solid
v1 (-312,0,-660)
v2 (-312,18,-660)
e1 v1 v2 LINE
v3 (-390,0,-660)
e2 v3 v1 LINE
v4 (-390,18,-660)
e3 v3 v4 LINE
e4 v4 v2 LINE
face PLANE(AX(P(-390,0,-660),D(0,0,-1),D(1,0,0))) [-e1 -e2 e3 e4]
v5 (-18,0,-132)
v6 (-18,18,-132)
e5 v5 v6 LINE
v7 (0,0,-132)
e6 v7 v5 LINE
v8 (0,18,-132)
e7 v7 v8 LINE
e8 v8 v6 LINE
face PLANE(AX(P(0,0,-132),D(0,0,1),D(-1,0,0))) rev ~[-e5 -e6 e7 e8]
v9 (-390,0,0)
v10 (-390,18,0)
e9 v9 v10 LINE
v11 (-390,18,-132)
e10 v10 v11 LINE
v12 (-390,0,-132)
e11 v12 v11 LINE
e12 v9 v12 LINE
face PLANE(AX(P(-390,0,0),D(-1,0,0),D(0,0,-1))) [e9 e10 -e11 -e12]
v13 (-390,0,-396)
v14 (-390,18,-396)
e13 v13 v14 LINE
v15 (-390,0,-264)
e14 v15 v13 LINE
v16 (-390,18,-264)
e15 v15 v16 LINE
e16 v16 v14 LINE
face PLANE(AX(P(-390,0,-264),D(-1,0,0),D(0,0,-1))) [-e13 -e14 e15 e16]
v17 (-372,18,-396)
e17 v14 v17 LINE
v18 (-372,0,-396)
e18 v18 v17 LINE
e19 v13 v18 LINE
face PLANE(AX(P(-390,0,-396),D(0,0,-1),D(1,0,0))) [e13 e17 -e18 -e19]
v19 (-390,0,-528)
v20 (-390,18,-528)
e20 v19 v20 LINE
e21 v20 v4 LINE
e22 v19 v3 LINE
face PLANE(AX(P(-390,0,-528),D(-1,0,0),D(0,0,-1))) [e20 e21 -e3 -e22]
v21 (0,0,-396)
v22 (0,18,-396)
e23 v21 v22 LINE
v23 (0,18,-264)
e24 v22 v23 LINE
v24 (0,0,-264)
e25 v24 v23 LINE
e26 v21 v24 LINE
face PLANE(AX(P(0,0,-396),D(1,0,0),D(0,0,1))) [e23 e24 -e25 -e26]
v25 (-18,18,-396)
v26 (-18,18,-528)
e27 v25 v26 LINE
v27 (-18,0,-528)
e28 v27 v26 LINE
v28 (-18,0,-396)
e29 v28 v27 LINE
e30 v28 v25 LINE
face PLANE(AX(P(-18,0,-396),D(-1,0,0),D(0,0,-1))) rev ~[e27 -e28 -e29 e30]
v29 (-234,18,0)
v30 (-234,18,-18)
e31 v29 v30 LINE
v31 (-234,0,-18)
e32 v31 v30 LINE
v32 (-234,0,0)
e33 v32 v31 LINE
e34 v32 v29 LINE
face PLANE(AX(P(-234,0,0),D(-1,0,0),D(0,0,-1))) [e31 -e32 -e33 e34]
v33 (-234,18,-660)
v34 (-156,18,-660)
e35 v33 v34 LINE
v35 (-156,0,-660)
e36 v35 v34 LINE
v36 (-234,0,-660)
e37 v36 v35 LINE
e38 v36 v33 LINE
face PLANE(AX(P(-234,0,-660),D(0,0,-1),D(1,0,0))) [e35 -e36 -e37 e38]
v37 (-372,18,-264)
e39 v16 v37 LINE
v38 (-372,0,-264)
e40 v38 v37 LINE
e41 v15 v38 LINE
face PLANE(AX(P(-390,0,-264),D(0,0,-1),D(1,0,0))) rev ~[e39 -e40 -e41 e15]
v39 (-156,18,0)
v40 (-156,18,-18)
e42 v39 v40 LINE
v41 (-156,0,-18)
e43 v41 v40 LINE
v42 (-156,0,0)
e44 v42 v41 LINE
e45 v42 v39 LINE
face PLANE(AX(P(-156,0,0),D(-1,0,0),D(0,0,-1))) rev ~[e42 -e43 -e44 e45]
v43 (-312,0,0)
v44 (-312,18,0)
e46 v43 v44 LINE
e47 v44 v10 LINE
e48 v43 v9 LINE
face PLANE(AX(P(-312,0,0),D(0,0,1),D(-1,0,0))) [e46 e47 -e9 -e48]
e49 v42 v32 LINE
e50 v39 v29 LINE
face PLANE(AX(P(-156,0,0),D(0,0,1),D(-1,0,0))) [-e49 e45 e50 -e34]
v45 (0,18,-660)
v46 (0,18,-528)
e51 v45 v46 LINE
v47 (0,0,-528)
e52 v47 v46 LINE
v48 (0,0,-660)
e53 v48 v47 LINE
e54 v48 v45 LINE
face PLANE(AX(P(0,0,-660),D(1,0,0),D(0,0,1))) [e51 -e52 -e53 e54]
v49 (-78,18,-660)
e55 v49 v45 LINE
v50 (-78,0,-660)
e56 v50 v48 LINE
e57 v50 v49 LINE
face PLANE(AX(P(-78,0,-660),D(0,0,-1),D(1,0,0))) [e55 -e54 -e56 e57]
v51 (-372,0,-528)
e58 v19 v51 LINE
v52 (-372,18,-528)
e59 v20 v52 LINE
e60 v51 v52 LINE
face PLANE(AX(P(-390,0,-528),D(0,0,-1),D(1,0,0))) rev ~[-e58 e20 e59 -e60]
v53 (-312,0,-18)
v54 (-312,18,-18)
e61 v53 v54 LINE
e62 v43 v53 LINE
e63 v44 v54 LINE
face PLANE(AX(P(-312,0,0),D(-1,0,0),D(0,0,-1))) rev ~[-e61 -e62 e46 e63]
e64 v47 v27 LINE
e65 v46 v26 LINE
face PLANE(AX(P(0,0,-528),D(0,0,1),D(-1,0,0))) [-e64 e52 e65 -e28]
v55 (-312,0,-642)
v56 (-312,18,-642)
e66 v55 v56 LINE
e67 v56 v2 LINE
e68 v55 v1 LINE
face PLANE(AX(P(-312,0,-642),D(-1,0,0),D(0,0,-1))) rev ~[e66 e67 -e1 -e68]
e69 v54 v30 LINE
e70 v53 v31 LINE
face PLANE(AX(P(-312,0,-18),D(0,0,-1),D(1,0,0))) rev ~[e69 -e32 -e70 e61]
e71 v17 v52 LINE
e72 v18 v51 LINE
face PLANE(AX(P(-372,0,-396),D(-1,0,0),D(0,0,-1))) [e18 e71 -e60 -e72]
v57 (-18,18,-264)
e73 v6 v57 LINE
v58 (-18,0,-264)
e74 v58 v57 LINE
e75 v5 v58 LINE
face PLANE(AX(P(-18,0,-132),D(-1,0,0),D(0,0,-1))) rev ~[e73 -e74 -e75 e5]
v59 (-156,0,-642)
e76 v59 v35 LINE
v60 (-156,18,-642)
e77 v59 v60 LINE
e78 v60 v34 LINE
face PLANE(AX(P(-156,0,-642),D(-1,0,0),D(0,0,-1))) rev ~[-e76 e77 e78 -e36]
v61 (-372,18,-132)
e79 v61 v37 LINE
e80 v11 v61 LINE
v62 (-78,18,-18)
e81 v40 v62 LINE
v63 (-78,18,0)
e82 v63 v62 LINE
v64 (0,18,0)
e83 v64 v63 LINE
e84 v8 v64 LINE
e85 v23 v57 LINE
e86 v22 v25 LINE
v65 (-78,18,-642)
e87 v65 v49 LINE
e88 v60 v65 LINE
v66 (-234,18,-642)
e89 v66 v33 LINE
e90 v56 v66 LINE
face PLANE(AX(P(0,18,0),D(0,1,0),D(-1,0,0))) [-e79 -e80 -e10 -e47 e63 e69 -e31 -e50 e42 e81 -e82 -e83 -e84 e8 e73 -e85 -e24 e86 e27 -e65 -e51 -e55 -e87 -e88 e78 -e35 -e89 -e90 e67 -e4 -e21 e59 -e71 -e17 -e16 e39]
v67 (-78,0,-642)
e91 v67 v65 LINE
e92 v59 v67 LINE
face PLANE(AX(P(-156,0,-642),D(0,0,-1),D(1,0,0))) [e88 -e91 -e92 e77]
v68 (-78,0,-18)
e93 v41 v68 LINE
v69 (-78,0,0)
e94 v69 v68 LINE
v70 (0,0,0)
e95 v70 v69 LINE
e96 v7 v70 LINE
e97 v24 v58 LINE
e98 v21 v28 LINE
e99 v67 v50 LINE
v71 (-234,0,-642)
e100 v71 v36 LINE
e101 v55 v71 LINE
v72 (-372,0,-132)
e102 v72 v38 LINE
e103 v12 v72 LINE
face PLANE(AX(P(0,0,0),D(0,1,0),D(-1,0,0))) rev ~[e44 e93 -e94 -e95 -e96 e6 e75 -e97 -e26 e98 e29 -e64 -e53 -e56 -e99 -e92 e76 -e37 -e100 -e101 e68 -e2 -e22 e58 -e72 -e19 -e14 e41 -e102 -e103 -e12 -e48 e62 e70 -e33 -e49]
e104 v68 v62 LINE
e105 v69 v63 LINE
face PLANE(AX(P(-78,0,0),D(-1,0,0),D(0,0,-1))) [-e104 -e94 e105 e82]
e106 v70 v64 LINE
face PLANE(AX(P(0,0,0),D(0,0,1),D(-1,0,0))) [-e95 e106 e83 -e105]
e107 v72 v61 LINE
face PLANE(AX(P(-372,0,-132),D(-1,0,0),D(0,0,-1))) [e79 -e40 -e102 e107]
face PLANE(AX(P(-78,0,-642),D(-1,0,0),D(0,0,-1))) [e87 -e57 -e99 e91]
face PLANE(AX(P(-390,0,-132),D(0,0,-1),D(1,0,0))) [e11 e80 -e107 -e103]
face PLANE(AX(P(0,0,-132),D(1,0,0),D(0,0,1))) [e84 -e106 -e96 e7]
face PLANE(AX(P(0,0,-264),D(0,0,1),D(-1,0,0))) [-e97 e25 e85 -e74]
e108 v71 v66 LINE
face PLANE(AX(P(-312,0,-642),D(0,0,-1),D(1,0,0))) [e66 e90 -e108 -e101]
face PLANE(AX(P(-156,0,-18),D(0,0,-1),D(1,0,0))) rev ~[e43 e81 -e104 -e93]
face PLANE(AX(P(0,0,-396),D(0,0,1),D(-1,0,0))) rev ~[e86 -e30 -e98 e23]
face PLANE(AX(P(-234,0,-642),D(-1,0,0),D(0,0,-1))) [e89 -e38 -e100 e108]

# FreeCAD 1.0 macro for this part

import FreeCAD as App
import Part
import Sketcher
Q = App.Units.Quantity


def add_polygon(sketch, points):
    """Adds a closed chain of lines whose ends are joined by coincident constraints."""
    first, n = sketch.GeometryCount, len(points)
    for a, b in zip(points, points[1:] + points[:1]):
        sketch.addGeometry(Part.LineSegment(App.Vector(*a, 0), App.Vector(*b, 0)), False)
    for i in range(n):
        sketch.addConstraint(Sketcher.Constraint("Coincident", first + i, 2, first + (i + 1) % n, 1))

doc = App.newDocument("Part")
params = doc.addObject("Spreadsheet::Sheet", "Params")
for row, (alias, value) in enumerate([
    ("sketch1_width", "18 mm"),
    ("sketch1_width2", "78 mm"),
    ("sketch1_height", "132 mm"),
    ("pad1_length", "18 mm"),
], start=1):
    params.set(f"A{row}", alias)
    params.set(f"B{row}", "=" + value)
    params.setAlias(f"B{row}", alias)

body = doc.addObject("PartDesign::Body", "Body")

# Sketch on XZ plane
sketch1 = body.newObject("Sketcher::SketchObject", "Sketch")
sketch1.AttachmentSupport = (doc.getObject("XZ_Plane"), [""])
sketch1.MapMode = "FlatFace"
add_polygon(sketch1, [(0, 0), (0, -132), (-18, -132), (-18, -264), (0, -264), (0, -396), (-18, -396), (-18, -528), (0, -528), (0, -660), (-78, -660), (-78, -642), (-156, -642), (-156, -660), (-234, -660), (-234, -642), (-312, -642), (-312, -660), (-390, -660), (-390, -528), (-372, -528), (-372, -396), (-390, -396), (-390, -264), (-372, -264), (-372, -132), (-390, -132), (-390, 0), (-312, 0), (-312, -18), (-234, -18), (-234, 0), (-156, 0), (-156, -18), (-78, -18), (-78, 0)])  # lines 0-35
sketch1.addConstraint(Sketcher.Constraint("Vertical", 0))
sketch1.addConstraint(Sketcher.Constraint("Horizontal", 1))
sketch1.addConstraint(Sketcher.Constraint("Vertical", 2))
sketch1.addConstraint(Sketcher.Constraint("Horizontal", 3))
sketch1.addConstraint(Sketcher.Constraint("Vertical", 4))
sketch1.addConstraint(Sketcher.Constraint("Horizontal", 5))
sketch1.addConstraint(Sketcher.Constraint("Vertical", 6))
sketch1.addConstraint(Sketcher.Constraint("Horizontal", 7))
sketch1.addConstraint(Sketcher.Constraint("Vertical", 8))
sketch1.addConstraint(Sketcher.Constraint("Horizontal", 9))
sketch1.addConstraint(Sketcher.Constraint("Vertical", 10))
sketch1.addConstraint(Sketcher.Constraint("Horizontal", 11))
sketch1.addConstraint(Sketcher.Constraint("Vertical", 12))
sketch1.addConstraint(Sketcher.Constraint("Horizontal", 13))
sketch1.addConstraint(Sketcher.Constraint("Vertical", 14))
sketch1.addConstraint(Sketcher.Constraint("Horizontal", 15))
sketch1.addConstraint(Sketcher.Constraint("Vertical", 16))
sketch1.addConstraint(Sketcher.Constraint("Horizontal", 17))
sketch1.addConstraint(Sketcher.Constraint("Vertical", 18))
sketch1.addConstraint(Sketcher.Constraint("Horizontal", 19))
sketch1.addConstraint(Sketcher.Constraint("Vertical", 20))
sketch1.addConstraint(Sketcher.Constraint("Horizontal", 21))
sketch1.addConstraint(Sketcher.Constraint("Vertical", 22))
sketch1.addConstraint(Sketcher.Constraint("Horizontal", 23))
sketch1.addConstraint(Sketcher.Constraint("Vertical", 24))
sketch1.addConstraint(Sketcher.Constraint("Horizontal", 25))
sketch1.addConstraint(Sketcher.Constraint("Vertical", 26))
sketch1.addConstraint(Sketcher.Constraint("Horizontal", 27))
sketch1.addConstraint(Sketcher.Constraint("Vertical", 28))
sketch1.addConstraint(Sketcher.Constraint("Horizontal", 29))
sketch1.addConstraint(Sketcher.Constraint("Vertical", 30))
sketch1.addConstraint(Sketcher.Constraint("Horizontal", 31))
sketch1.addConstraint(Sketcher.Constraint("Vertical", 32))
sketch1.addConstraint(Sketcher.Constraint("Horizontal", 33))
sketch1.addConstraint(Sketcher.Constraint("Vertical", 34))
sketch1.addConstraint(Sketcher.Constraint("Horizontal", 35))
sketch1.addConstraint(Sketcher.Constraint("Coincident", 35, 2, -1, 1))
sketch1.addConstraint(Sketcher.Constraint("PointOnObject", 3, 2, -2))
sketch1.addConstraint(Sketcher.Constraint("PointOnObject", 7, 2, -2))
sketch1.addConstraint(Sketcher.Constraint("PointOnObject", 26, 2, -1))
sketch1.addConstraint(Sketcher.Constraint("PointOnObject", 30, 2, -1))
sketch1.addConstraint(Sketcher.Constraint("Horizontal", 9, 2, 12, 2))
sketch1.addConstraint(Sketcher.Constraint("Horizontal", 11, 2, 14, 2))
sketch1.addConstraint(Sketcher.Constraint("Horizontal", 13, 2, 16, 2))
sketch1.addConstraint(Sketcher.Constraint("Horizontal", 7, 2, 18, 2))
sketch1.addConstraint(Sketcher.Constraint("Horizontal", 5, 2, 20, 2))
sketch1.addConstraint(Sketcher.Constraint("Horizontal", 3, 2, 22, 2))
sketch1.addConstraint(Sketcher.Constraint("Horizontal", 1, 2, 24, 2))
sketch1.addConstraint(Sketcher.Constraint("Horizontal", 29, 2, 32, 2))
sketch1.addConstraint(Sketcher.Constraint("Vertical", 2, 2, 5, 2))
sketch1.addConstraint(Sketcher.Constraint("Vertical", 18, 2, 21, 2))
sketch1.addConstraint(Sketcher.Constraint("Vertical", 20, 2, 23, 2))
sketch1.addConstraint(Sketcher.Constraint("Vertical", 22, 2, 25, 2))
sketch1.addConstraint(Sketcher.Constraint("Vertical", 16, 2, 27, 2))
sketch1.addConstraint(Sketcher.Constraint("Vertical", 14, 2, 29, 2))
sketch1.addConstraint(Sketcher.Constraint("Vertical", 12, 2, 31, 2))
sketch1.addConstraint(Sketcher.Constraint("Vertical", 10, 2, 33, 2))
sketch1.addConstraint(Sketcher.Constraint("Equal", 9, 11))
sketch1.addConstraint(Sketcher.Constraint("Equal", 11, 13))
sketch1.addConstraint(Sketcher.Constraint("Equal", 13, 15))
sketch1.addConstraint(Sketcher.Constraint("Equal", 15, 17))
sketch1.addConstraint(Sketcher.Constraint("Equal", 7, 19))
sketch1.addConstraint(Sketcher.Constraint("Equal", 0, 2))
sketch1.addConstraint(Sketcher.Constraint("Equal", 2, 4))
sketch1.addConstraint(Sketcher.Constraint("Equal", 4, 6))
sketch1.addConstraint(Sketcher.Constraint("Equal", 6, 8))
sketch1.addConstraint(Sketcher.Constraint("Equal", 25, 10))
sketch1.addConstraint(Sketcher.Constraint("Equal", 16, 28))
sketch1.addConstraint(Sketcher.Constraint("DistanceX", 1, 2, 1, 1, Q("18 mm")))
sketch1.addConstraint(Sketcher.Constraint("DistanceX", 9, 2, 9, 1, Q("78 mm")))
sketch1.addConstraint(Sketcher.Constraint("DistanceY", 0, 2, 0, 1, Q("132 mm")))
sketch1.setExpression("Constraints[104]", "Params.sketch1_width")
sketch1.setExpression("Constraints[105]", "Params.sketch1_width2")
sketch1.setExpression("Constraints[106]", "Params.sketch1_height")
pad1 = body.newObject("PartDesign::Pad", "Pad")
pad1.Profile = sketch1
pad1.setExpression("Length", "Params.pad1_length")
pad1.Reversed = True

doc.recompute()
